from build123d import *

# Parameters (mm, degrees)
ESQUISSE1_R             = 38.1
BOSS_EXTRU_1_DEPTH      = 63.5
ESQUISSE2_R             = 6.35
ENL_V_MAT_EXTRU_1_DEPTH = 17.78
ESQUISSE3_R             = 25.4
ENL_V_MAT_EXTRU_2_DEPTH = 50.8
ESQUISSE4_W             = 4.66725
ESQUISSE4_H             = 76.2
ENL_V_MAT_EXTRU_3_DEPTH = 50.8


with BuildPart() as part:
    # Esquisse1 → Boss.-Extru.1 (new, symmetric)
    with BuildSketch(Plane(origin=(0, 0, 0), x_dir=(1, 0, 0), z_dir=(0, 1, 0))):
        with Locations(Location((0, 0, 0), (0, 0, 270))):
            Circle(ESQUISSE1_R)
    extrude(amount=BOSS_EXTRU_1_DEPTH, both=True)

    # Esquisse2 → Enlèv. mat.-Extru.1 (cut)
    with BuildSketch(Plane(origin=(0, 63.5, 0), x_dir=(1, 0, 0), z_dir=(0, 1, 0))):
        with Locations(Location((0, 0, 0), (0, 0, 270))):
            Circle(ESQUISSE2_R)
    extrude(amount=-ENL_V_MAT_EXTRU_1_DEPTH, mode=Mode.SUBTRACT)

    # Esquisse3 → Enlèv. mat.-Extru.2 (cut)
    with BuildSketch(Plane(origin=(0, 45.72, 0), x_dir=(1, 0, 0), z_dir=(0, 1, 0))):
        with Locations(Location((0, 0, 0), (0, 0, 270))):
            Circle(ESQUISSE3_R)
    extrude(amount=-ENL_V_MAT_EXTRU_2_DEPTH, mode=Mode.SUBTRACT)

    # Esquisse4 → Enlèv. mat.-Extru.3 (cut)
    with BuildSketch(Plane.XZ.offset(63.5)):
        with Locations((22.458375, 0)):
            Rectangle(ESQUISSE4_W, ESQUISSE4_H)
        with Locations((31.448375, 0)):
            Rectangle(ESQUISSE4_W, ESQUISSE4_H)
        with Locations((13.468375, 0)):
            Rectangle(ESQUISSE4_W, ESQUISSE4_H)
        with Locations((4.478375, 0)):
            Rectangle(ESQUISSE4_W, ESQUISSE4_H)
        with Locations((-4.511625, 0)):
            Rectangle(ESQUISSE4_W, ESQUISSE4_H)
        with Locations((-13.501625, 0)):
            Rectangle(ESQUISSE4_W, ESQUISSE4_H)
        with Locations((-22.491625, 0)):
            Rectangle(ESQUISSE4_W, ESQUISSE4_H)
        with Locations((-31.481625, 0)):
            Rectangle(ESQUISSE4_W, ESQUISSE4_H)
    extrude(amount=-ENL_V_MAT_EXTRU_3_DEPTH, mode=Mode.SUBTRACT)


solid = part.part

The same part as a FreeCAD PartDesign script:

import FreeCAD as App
import Part
import Sketcher
Q = App.Units.Quantity

doc = App.newDocument("Part")
params = doc.addObject("Spreadsheet::Sheet", "Params")
for row, (alias, value) in enumerate([
    ("sketch1_diameter", "3 in"),
    ("pad1_length", "5 in"),
    ("sketch2_diameter", "0.5 in"),
    ("pocket1_length", "0.7 in"),
    ("sketch3_diameter", "2 in"),
    ("pocket2_length", "2 in"),
    ("sketch4_height", "3 in"),
    ("pocket3_length", "2 in"),
], start=1):
    params.set(f"A{row}", alias)
    params.set(f"B{row}", "=" + value)
    params.setAlias(f"B{row}", alias)

body = doc.addObject("PartDesign::Body", "Body")

# Sketch on XZ plane
sketch1 = doc.addObject("Sketcher::SketchObject", "Sketch")
body.addObject(sketch1)
sketch1.AttachmentSupport = (doc.XZ_Plane, [""])
sketch1.MapMode = "FlatFace"
sketch1.addGeometry(Part.Circle(App.Vector(0, 0, 0), App.Vector(0, 0, 1), 38), False)
sketch1.addConstraint(Sketcher.Constraint("Coincident", 0, 3, -1, 1))
sketch1.addConstraint(Sketcher.Constraint("Diameter", 0, Q("3 in")))
sketch1.setExpression("Constraints[1]", "Params.sketch1_diameter")
pad1 = doc.addObject("PartDesign::Pad", "Pad")
body.addObject(pad1)
pad1.Profile = sketch1
pad1.setExpression("Length", "Params.pad1_length")
pad1.Midplane = True

# Sketch on XZ plane
sketch2 = doc.addObject("Sketcher::SketchObject", "Sketch001")
body.addObject(sketch2)
sketch2.AttachmentSupport = (doc.XZ_Plane, [""])
sketch2.MapMode = "FlatFace"
sketch2.AttachmentOffset = App.Placement(App.Vector(0, 0, -2.5 * 25.4), App.Rotation())
sketch2.addGeometry(Part.Circle(App.Vector(0, 0, 0), App.Vector(0, 0, 1), 6), False)
sketch2.addConstraint(Sketcher.Constraint("Coincident", 0, 3, -1, 1))
sketch2.addConstraint(Sketcher.Constraint("Diameter", 0, Q("0.5 in")))
sketch2.setExpression("Constraints[1]", "Params.sketch2_diameter")
pocket1 = doc.addObject("PartDesign::Pocket", "Pocket")
body.addObject(pocket1)
pocket1.Profile = sketch2
pocket1.setExpression("Length", "Params.pocket1_length")
pocket1.Reversed = True

# Sketch on XZ plane
sketch3 = doc.addObject("Sketcher::SketchObject", "Sketch002")
body.addObject(sketch3)
sketch3.AttachmentSupport = (doc.XZ_Plane, [""])
sketch3.MapMode = "FlatFace"
sketch3.AttachmentOffset = App.Placement(App.Vector(0, 0, -1.8 * 25.4), App.Rotation())
sketch3.addGeometry(Part.Circle(App.Vector(0, 0, 0), App.Vector(0, 0, 1), 25), False)
sketch3.addConstraint(Sketcher.Constraint("Coincident", 0, 3, -1, 1))
sketch3.addConstraint(Sketcher.Constraint("Diameter", 0, Q("2 in")))
sketch3.setExpression("Constraints[1]", "Params.sketch3_diameter")
pocket2 = doc.addObject("PartDesign::Pocket", "Pocket001")
body.addObject(pocket2)
pocket2.Profile = sketch3
pocket2.setExpression("Length", "Params.pocket2_length")
pocket2.Reversed = True

# Sketch on XZ plane
sketch4 = doc.addObject("Sketcher::SketchObject", "Sketch003")
body.addObject(sketch4)
sketch4.AttachmentSupport = (doc.XZ_Plane, [""])
sketch4.MapMode = "FlatFace"
sketch4.AttachmentOffset = App.Placement(App.Vector(0, 0, 2.5 * 25.4), App.Rotation())
sketch4.addGeometry(Part.LineSegment(App.Vector(20.1, 38.1, 0), App.Vector(20.1, -38.1, 0)), False)
sketch4.addGeometry(Part.LineSegment(App.Vector(20.1, -38.1, 0), App.Vector(24.8, -38.1, 0)), False)
sketch4.addGeometry(Part.LineSegment(App.Vector(24.8, -38.1, 0), App.Vector(24.8, 38.1, 0)), False)
sketch4.addGeometry(Part.LineSegment(App.Vector(24.8, 38.1, 0), App.Vector(20.1, 38.1, 0)), False)
sketch4.addGeometry(Part.LineSegment(App.Vector(29.1, 38.1, 0), App.Vector(29.1, -38.1, 0)), False)
sketch4.addGeometry(Part.LineSegment(App.Vector(29.1, -38.1, 0), App.Vector(33.8, -38.1, 0)), False)
sketch4.addGeometry(Part.LineSegment(App.Vector(33.8, -38.1, 0), App.Vector(33.8, 38.1, 0)), False)
sketch4.addGeometry(Part.LineSegment(App.Vector(33.8, 38.1, 0), App.Vector(29.1, 38.1, 0)), False)
sketch4.addGeometry(Part.LineSegment(App.Vector(11.1, 38.1, 0), App.Vector(11.1, -38.1, 0)), False)
sketch4.addGeometry(Part.LineSegment(App.Vector(11.1, -38.1, 0), App.Vector(15.8, -38.1, 0)), False)
sketch4.addGeometry(Part.LineSegment(App.Vector(15.8, -38.1, 0), App.Vector(15.8, 38.1, 0)), False)
sketch4.addGeometry(Part.LineSegment(App.Vector(15.8, 38.1, 0), App.Vector(11.1, 38.1, 0)), False)
sketch4.addGeometry(Part.LineSegment(App.Vector(2.1, 38.1, 0), App.Vector(2.1, -38.1, 0)), False)
sketch4.addGeometry(Part.LineSegment(App.Vector(2.1, -38.1, 0), App.Vector(6.8, -38.1, 0)), False)
sketch4.addGeometry(Part.LineSegment(App.Vector(6.8, -38.1, 0), App.Vector(6.8, 38.1, 0)), False)
sketch4.addGeometry(Part.LineSegment(App.Vector(6.8, 38.1, 0), App.Vector(2.1, 38.1, 0)), False)
sketch4.addGeometry(Part.LineSegment(App.Vector(-6.8, 38.1, 0), App.Vector(-6.8, -38.1, 0)), False)
sketch4.addGeometry(Part.LineSegment(App.Vector(-6.8, -38.1, 0), App.Vector(-2.2, -38.1, 0)), False)
sketch4.addGeometry(Part.LineSegment(App.Vector(-2.2, -38.1, 0), App.Vector(-2.2, 38.1, 0)), False)
sketch4.addGeometry(Part.LineSegment(App.Vector(-2.2, 38.1, 0), App.Vector(-6.8, 38.1, 0)), False)
sketch4.addGeometry(Part.LineSegment(App.Vector(-15.8, 38.1, 0), App.Vector(-15.8, -38.1, 0)), False)
sketch4.addGeometry(Part.LineSegment(App.Vector(-15.8, -38.1, 0), App.Vector(-11.2, -38.1, 0)), False)
sketch4.addGeometry(Part.LineSegment(App.Vector(-11.2, -38.1, 0), App.Vector(-11.2, 38.1, 0)), False)
sketch4.addGeometry(Part.LineSegment(App.Vector(-11.2, 38.1, 0), App.Vector(-15.8, 38.1, 0)), False)
sketch4.addGeometry(Part.LineSegment(App.Vector(-24.8, 38.1, 0), App.Vector(-24.8, -38.1, 0)), False)
sketch4.addGeometry(Part.LineSegment(App.Vector(-24.8, -38.1, 0), App.Vector(-20.2, -38.1, 0)), False)
sketch4.addGeometry(Part.LineSegment(App.Vector(-20.2, -38.1, 0), App.Vector(-20.2, 38.1, 0)), False)
sketch4.addGeometry(Part.LineSegment(App.Vector(-20.2, 38.1, 0), App.Vector(-24.8, 38.1, 0)), False)
sketch4.addGeometry(Part.LineSegment(App.Vector(-33.8, 38.1, 0), App.Vector(-33.8, -38.1, 0)), False)
sketch4.addGeometry(Part.LineSegment(App.Vector(-33.8, -38.1, 0), App.Vector(-29.1, -38.1, 0)), False)
sketch4.addGeometry(Part.LineSegment(App.Vector(-29.1, -38.1, 0), App.Vector(-29.1, 38.1, 0)), False)
sketch4.addGeometry(Part.LineSegment(App.Vector(-29.1, 38.1, 0), App.Vector(-33.8, 38.1, 0)), False)
sketch4.addConstraint(Sketcher.Constraint("Coincident", 0, 2, 1, 1))
sketch4.addConstraint(Sketcher.Constraint("Coincident", 1, 2, 2, 1))
sketch4.addConstraint(Sketcher.Constraint("Coincident", 2, 2, 3, 1))
sketch4.addConstraint(Sketcher.Constraint("Coincident", 3, 2, 0, 1))
sketch4.addConstraint(Sketcher.Constraint("Coincident", 4, 2, 5, 1))
sketch4.addConstraint(Sketcher.Constraint("Coincident", 5, 2, 6, 1))
sketch4.addConstraint(Sketcher.Constraint("Coincident", 6, 2, 7, 1))
sketch4.addConstraint(Sketcher.Constraint("Coincident", 7, 2, 4, 1))
sketch4.addConstraint(Sketcher.Constraint("Coincident", 8, 2, 9, 1))
sketch4.addConstraint(Sketcher.Constraint("Coincident", 9, 2, 10, 1))
sketch4.addConstraint(Sketcher.Constraint("Coincident", 10, 2, 11, 1))
sketch4.addConstraint(Sketcher.Constraint("Coincident", 11, 2, 8, 1))
sketch4.addConstraint(Sketcher.Constraint("Coincident", 12, 2, 13, 1))
sketch4.addConstraint(Sketcher.Constraint("Coincident", 13, 2, 14, 1))
sketch4.addConstraint(Sketcher.Constraint("Coincident", 14, 2, 15, 1))
sketch4.addConstraint(Sketcher.Constraint("Coincident", 15, 2, 12, 1))
sketch4.addConstraint(Sketcher.Constraint("Coincident", 16, 2, 17, 1))
sketch4.addConstraint(Sketcher.Constraint("Coincident", 17, 2, 18, 1))
sketch4.addConstraint(Sketcher.Constraint("Coincident", 18, 2, 19, 1))
sketch4.addConstraint(Sketcher.Constraint("Coincident", 19, 2, 16, 1))
sketch4.addConstraint(Sketcher.Constraint("Coincident", 20, 2, 21, 1))
sketch4.addConstraint(Sketcher.Constraint("Coincident", 21, 2, 22, 1))
sketch4.addConstraint(Sketcher.Constraint("Coincident", 22, 2, 23, 1))
sketch4.addConstraint(Sketcher.Constraint("Coincident", 23, 2, 20, 1))
sketch4.addConstraint(Sketcher.Constraint("Coincident", 24, 2, 25, 1))
sketch4.addConstraint(Sketcher.Constraint("Coincident", 25, 2, 26, 1))
sketch4.addConstraint(Sketcher.Constraint("Coincident", 26, 2, 27, 1))
sketch4.addConstraint(Sketcher.Constraint("Coincident", 27, 2, 24, 1))
sketch4.addConstraint(Sketcher.Constraint("Coincident", 28, 2, 29, 1))
sketch4.addConstraint(Sketcher.Constraint("Coincident", 29, 2, 30, 1))
sketch4.addConstraint(Sketcher.Constraint("Coincident", 30, 2, 31, 1))
sketch4.addConstraint(Sketcher.Constraint("Coincident", 31, 2, 28, 1))
sketch4.addConstraint(Sketcher.Constraint("Vertical", 0))
sketch4.addConstraint(Sketcher.Constraint("Horizontal", 1))
sketch4.addConstraint(Sketcher.Constraint("Vertical", 2))
sketch4.addConstraint(Sketcher.Constraint("Horizontal", 3))
sketch4.addConstraint(Sketcher.Constraint("Vertical", 4))
sketch4.addConstraint(Sketcher.Constraint("Horizontal", 5))
sketch4.addConstraint(Sketcher.Constraint("Vertical", 6))
sketch4.addConstraint(Sketcher.Constraint("Horizontal", 7))
sketch4.addConstraint(Sketcher.Constraint("Vertical", 8))
sketch4.addConstraint(Sketcher.Constraint("Horizontal", 9))
sketch4.addConstraint(Sketcher.Constraint("Vertical", 10))
sketch4.addConstraint(Sketcher.Constraint("Horizontal", 11))
sketch4.addConstraint(Sketcher.Constraint("Vertical", 12))
sketch4.addConstraint(Sketcher.Constraint("Horizontal", 13))
sketch4.addConstraint(Sketcher.Constraint("Vertical", 14))
sketch4.addConstraint(Sketcher.Constraint("Horizontal", 15))
sketch4.addConstraint(Sketcher.Constraint("Vertical", 16))
sketch4.addConstraint(Sketcher.Constraint("Horizontal", 17))
sketch4.addConstraint(Sketcher.Constraint("Vertical", 18))
sketch4.addConstraint(Sketcher.Constraint("Horizontal", 19))
sketch4.addConstraint(Sketcher.Constraint("Vertical", 20))
sketch4.addConstraint(Sketcher.Constraint("Horizontal", 21))
sketch4.addConstraint(Sketcher.Constraint("Vertical", 22))
sketch4.addConstraint(Sketcher.Constraint("Horizontal", 23))
sketch4.addConstraint(Sketcher.Constraint("Vertical", 24))
sketch4.addConstraint(Sketcher.Constraint("Horizontal", 25))
sketch4.addConstraint(Sketcher.Constraint("Vertical", 26))
sketch4.addConstraint(Sketcher.Constraint("Horizontal", 27))
sketch4.addConstraint(Sketcher.Constraint("Vertical", 28))
sketch4.addConstraint(Sketcher.Constraint("Horizontal", 29))
sketch4.addConstraint(Sketcher.Constraint("Vertical", 30))
sketch4.addConstraint(Sketcher.Constraint("Horizontal", 31))
sketch4.addConstraint(Sketcher.Constraint("Horizontal", 1, 2, 4, 2))
sketch4.addConstraint(Sketcher.Constraint("Horizontal", 3, 2, 6, 2))
sketch4.addConstraint(Sketcher.Constraint("Horizontal", 5, 2, 8, 2))
sketch4.addConstraint(Sketcher.Constraint("Horizontal", 7, 2, 10, 2))
sketch4.addConstraint(Sketcher.Constraint("Horizontal", 9, 2, 12, 2))
sketch4.addConstraint(Sketcher.Constraint("Horizontal", 11, 2, 14, 2))
sketch4.addConstraint(Sketcher.Constraint("Horizontal", 13, 2, 16, 2))
sketch4.addConstraint(Sketcher.Constraint("Horizontal", 15, 2, 18, 2))
sketch4.addConstraint(Sketcher.Constraint("Horizontal", 17, 2, 20, 2))
sketch4.addConstraint(Sketcher.Constraint("Horizontal", 19, 2, 22, 2))
sketch4.addConstraint(Sketcher.Constraint("Horizontal", 21, 2, 24, 2))
sketch4.addConstraint(Sketcher.Constraint("Horizontal", 23, 2, 26, 2))
sketch4.addConstraint(Sketcher.Constraint("Horizontal", 25, 2, 28, 2))
sketch4.addConstraint(Sketcher.Constraint("Horizontal", 27, 2, 30, 2))
sketch4.addConstraint(Sketcher.Constraint("Equal", 3, 5))
sketch4.addConstraint(Sketcher.Constraint("Equal", 7, 9))
sketch4.addConstraint(Sketcher.Constraint("Equal", 11, 13))
sketch4.addConstraint(Sketcher.Constraint("Equal", 15, 17))
sketch4.addConstraint(Sketcher.Constraint("Equal", 19, 21))
sketch4.addConstraint(Sketcher.Constraint("Equal", 23, 25))
sketch4.addConstraint(Sketcher.Constraint("Equal", 27, 29))
sketch4.addConstraint(Sketcher.Constraint("DistanceY", 0, 2, 0, 1, Q("3 in")))
sketch4.addConstraint(Sketcher.Constraint("DistanceY", 0, 2, -1, 1, Q("1.5 in")))
sketch4.addConstraint(Sketcher.Constraint("DistanceX", -1, 1, 5, 2, Q("1.33 in")))
sketch4.addConstraint(Sketcher.Constraint("DistanceX", 1, 1, 1, 2, Q("4.66725 mm")))
sketch4.addConstraint(Sketcher.Constraint("DistanceX", -1, 1, 1, 2, Q("24.792 mm")))
sketch4.addConstraint(Sketcher.Constraint("DistanceX", -1, 1, 9, 2, Q("15.802 mm")))
sketch4.addConstraint(Sketcher.Constraint("DistanceX", -1, 1, 13, 2, Q("6.812 mm")))
sketch4.addConstraint(Sketcher.Constraint("DistanceX", 17, 2, -1, 1, Q("2.178 mm")))
sketch4.addConstraint(Sketcher.Constraint("DistanceX", 21, 2, -1, 1, Q("11.168 mm")))
sketch4.addConstraint(Sketcher.Constraint("DistanceX", 25, 2, -1, 1, Q("20.158 mm")))
sketch4.addConstraint(Sketcher.Constraint("DistanceX", 29, 2, -1, 1, Q("29.148 mm")))
sketch4.setExpression("Constraints[85]", "Params.sketch4_height")
pocket3 = doc.addObject("PartDesign::Pocket", "Pocket002")
body.addObject(pocket3)
pocket3.Profile = sketch4
pocket3.setExpression("Length", "Params.pocket3_length")

doc.recompute()
